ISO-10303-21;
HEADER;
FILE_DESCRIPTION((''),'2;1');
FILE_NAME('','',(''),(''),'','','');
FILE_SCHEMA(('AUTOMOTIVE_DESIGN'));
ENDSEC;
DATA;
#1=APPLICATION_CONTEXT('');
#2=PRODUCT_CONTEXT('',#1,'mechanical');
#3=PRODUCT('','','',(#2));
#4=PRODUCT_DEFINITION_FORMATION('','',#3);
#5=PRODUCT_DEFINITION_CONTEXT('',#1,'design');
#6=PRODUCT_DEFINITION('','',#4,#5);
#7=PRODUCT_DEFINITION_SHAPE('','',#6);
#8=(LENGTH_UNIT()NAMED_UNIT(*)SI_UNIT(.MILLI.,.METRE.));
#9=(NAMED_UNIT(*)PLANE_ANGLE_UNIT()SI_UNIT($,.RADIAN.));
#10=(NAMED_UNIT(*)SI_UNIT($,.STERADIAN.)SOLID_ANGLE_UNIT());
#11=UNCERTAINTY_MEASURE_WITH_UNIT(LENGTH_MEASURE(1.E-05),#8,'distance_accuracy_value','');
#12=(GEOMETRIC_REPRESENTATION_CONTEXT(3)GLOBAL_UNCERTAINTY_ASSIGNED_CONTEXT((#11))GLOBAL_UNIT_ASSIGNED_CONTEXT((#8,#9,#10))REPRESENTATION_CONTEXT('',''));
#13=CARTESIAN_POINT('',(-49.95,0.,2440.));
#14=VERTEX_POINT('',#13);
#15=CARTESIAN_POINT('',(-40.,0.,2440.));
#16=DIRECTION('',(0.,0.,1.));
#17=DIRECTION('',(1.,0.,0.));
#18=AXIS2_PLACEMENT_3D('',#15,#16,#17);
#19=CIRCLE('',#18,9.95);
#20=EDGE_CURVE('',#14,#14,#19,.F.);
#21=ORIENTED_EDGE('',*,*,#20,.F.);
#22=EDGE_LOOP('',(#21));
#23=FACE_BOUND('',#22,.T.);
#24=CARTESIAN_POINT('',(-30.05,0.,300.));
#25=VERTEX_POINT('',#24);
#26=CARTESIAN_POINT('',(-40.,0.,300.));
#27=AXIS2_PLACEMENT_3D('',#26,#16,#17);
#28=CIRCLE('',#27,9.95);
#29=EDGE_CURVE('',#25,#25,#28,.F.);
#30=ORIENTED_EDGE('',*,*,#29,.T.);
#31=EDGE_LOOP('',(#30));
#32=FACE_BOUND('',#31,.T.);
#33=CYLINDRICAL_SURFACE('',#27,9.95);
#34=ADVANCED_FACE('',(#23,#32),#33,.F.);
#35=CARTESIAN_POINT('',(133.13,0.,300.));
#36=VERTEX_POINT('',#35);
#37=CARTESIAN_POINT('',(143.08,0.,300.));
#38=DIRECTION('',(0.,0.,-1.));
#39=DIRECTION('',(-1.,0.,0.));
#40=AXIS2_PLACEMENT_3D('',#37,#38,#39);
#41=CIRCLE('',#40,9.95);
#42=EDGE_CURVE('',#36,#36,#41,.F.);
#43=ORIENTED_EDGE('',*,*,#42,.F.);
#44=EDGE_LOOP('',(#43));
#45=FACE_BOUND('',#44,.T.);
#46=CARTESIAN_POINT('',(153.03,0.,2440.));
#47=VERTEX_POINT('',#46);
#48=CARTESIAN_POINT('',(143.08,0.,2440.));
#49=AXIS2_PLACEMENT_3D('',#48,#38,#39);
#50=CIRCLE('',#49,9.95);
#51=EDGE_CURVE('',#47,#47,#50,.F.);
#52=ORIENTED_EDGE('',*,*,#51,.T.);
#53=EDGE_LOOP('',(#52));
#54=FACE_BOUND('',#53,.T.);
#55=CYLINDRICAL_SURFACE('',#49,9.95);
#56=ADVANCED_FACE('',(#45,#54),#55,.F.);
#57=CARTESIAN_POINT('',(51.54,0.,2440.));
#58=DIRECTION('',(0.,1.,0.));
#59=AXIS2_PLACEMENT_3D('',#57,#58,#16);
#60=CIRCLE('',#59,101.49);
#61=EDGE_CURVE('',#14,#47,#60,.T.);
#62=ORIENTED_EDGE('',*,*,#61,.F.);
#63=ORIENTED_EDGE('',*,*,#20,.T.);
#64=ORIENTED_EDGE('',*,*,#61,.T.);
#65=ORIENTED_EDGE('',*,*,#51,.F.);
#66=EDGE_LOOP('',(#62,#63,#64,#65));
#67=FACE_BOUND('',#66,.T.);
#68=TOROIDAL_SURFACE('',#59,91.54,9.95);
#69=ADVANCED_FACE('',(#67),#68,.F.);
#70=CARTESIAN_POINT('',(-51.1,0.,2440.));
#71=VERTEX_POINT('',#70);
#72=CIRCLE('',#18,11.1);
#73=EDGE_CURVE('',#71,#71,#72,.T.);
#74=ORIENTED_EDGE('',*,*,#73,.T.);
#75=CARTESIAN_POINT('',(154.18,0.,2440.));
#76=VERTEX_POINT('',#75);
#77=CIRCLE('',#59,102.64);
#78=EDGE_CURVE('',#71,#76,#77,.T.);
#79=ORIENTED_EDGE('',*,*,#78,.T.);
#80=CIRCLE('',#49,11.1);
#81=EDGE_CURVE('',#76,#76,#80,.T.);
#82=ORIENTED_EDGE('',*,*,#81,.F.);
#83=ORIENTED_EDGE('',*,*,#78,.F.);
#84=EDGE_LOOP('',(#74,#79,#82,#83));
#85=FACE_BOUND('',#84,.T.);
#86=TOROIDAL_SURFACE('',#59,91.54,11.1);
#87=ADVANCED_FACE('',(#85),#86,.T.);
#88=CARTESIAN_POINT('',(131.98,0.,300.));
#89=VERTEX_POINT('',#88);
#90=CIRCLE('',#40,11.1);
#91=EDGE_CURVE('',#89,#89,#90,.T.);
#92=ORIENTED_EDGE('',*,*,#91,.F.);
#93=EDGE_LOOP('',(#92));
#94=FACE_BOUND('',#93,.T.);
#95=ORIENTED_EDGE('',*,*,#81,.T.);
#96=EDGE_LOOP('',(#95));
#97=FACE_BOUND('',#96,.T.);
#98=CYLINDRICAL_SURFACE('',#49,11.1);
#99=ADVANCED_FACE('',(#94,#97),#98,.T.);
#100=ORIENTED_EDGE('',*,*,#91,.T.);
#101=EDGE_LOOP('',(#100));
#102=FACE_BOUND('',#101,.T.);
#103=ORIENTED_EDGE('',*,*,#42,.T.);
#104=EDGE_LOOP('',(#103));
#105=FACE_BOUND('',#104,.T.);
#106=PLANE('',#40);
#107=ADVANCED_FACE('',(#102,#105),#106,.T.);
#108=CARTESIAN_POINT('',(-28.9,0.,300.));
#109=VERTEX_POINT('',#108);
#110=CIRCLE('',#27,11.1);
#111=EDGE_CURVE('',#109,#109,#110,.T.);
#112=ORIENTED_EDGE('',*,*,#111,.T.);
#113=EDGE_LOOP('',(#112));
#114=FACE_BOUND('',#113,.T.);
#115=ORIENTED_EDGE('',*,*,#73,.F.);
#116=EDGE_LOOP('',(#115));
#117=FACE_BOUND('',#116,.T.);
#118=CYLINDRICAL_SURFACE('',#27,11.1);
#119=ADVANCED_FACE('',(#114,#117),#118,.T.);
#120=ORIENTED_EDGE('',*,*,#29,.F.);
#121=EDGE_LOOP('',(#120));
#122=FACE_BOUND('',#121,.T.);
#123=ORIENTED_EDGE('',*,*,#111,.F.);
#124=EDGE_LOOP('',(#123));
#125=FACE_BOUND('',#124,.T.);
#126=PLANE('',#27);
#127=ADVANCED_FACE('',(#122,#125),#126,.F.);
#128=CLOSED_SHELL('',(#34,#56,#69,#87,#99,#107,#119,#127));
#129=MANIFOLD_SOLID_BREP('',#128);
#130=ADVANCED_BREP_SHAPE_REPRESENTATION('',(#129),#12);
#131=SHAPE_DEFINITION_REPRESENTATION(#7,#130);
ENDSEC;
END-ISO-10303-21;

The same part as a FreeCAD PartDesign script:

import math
import FreeCAD as App
import Part
import Sketcher
from FreeCAD import Vector

doc = App.newDocument("Part")
body = doc.addObject("PartDesign::Body", "Body")

sketch1 = body.newObject("Sketcher::SketchObject", "Sketch")
sketch1.AttachmentSupport = (doc.getObject("XY_Plane"), [""])
sketch1.MapMode = "FlatFace"
sketch1.AttachmentOffset = App.Placement(Vector(0, 0, 300), App.Rotation())
sketch1.addGeometry([
    Part.Circle(Vector(143.08, 0, 0), Vector(0, 0, 1), 11.1),
    Part.Circle(Vector(143.08, 0, 0), Vector(0, 0, 1), 9.95),
], False)
sketch1.addConstraint([
    Sketcher.Constraint("Coincident", 1, 3, 0, 3),
    Sketcher.Constraint("PointOnObject", 0, 3, -1),
    Sketcher.Constraint("Diameter", 0, 22.2),
    Sketcher.Constraint("Diameter", 1, 19.9),
    Sketcher.Constraint("DistanceX", -1, 1, 0, 3, 143.08),
])

sketch2 = body.newObject("Sketcher::SketchObject", "Sketch001")
sketch2.AttachmentSupport = (doc.getObject("XZ_Plane"), [""])
sketch2.MapMode = "FlatFace"
sketch2.addGeometry([
    Part.LineSegment(Vector(143.08, 300, 0), Vector(143.08, 2440, 0)),
    Part.ArcOfCircle(Part.Circle(Vector(51.54, 2440, 0), Vector(0, 0, 1), 91.54), math.radians(0), math.radians(180)),
    Part.LineSegment(Vector(-40, 2440, 0), Vector(-40, 300, 0)),
], False)
sketch2.addConstraint([
    Sketcher.Constraint("Tangent", 0, 2, 1, 1),
    Sketcher.Constraint("Tangent", 1, 2, 2, 1),
    Sketcher.Constraint("Vertical", 0),
    Sketcher.Constraint("Vertical", 2),
    Sketcher.Constraint("Horizontal", 0, 1, 2, 2),
    Sketcher.Constraint("DistanceY", 0, 1, 0, 2, 2140.0),
    Sketcher.Constraint("Radius", 1, 91.54),
    Sketcher.Constraint("DistanceY", -1, 1, 1, 3, 2440.0),
    Sketcher.Constraint("DistanceX", 1, 2, -1, 1, 40.0),
])
doc.recompute()

additivepipe = body.newObject("PartDesign::AdditivePipe", "AdditivePipe")
additivepipe.Profile = sketch1
additivepipe.Spine = (sketch2, ["Edge1", "Edge2", "Edge3"])

doc.recompute()
